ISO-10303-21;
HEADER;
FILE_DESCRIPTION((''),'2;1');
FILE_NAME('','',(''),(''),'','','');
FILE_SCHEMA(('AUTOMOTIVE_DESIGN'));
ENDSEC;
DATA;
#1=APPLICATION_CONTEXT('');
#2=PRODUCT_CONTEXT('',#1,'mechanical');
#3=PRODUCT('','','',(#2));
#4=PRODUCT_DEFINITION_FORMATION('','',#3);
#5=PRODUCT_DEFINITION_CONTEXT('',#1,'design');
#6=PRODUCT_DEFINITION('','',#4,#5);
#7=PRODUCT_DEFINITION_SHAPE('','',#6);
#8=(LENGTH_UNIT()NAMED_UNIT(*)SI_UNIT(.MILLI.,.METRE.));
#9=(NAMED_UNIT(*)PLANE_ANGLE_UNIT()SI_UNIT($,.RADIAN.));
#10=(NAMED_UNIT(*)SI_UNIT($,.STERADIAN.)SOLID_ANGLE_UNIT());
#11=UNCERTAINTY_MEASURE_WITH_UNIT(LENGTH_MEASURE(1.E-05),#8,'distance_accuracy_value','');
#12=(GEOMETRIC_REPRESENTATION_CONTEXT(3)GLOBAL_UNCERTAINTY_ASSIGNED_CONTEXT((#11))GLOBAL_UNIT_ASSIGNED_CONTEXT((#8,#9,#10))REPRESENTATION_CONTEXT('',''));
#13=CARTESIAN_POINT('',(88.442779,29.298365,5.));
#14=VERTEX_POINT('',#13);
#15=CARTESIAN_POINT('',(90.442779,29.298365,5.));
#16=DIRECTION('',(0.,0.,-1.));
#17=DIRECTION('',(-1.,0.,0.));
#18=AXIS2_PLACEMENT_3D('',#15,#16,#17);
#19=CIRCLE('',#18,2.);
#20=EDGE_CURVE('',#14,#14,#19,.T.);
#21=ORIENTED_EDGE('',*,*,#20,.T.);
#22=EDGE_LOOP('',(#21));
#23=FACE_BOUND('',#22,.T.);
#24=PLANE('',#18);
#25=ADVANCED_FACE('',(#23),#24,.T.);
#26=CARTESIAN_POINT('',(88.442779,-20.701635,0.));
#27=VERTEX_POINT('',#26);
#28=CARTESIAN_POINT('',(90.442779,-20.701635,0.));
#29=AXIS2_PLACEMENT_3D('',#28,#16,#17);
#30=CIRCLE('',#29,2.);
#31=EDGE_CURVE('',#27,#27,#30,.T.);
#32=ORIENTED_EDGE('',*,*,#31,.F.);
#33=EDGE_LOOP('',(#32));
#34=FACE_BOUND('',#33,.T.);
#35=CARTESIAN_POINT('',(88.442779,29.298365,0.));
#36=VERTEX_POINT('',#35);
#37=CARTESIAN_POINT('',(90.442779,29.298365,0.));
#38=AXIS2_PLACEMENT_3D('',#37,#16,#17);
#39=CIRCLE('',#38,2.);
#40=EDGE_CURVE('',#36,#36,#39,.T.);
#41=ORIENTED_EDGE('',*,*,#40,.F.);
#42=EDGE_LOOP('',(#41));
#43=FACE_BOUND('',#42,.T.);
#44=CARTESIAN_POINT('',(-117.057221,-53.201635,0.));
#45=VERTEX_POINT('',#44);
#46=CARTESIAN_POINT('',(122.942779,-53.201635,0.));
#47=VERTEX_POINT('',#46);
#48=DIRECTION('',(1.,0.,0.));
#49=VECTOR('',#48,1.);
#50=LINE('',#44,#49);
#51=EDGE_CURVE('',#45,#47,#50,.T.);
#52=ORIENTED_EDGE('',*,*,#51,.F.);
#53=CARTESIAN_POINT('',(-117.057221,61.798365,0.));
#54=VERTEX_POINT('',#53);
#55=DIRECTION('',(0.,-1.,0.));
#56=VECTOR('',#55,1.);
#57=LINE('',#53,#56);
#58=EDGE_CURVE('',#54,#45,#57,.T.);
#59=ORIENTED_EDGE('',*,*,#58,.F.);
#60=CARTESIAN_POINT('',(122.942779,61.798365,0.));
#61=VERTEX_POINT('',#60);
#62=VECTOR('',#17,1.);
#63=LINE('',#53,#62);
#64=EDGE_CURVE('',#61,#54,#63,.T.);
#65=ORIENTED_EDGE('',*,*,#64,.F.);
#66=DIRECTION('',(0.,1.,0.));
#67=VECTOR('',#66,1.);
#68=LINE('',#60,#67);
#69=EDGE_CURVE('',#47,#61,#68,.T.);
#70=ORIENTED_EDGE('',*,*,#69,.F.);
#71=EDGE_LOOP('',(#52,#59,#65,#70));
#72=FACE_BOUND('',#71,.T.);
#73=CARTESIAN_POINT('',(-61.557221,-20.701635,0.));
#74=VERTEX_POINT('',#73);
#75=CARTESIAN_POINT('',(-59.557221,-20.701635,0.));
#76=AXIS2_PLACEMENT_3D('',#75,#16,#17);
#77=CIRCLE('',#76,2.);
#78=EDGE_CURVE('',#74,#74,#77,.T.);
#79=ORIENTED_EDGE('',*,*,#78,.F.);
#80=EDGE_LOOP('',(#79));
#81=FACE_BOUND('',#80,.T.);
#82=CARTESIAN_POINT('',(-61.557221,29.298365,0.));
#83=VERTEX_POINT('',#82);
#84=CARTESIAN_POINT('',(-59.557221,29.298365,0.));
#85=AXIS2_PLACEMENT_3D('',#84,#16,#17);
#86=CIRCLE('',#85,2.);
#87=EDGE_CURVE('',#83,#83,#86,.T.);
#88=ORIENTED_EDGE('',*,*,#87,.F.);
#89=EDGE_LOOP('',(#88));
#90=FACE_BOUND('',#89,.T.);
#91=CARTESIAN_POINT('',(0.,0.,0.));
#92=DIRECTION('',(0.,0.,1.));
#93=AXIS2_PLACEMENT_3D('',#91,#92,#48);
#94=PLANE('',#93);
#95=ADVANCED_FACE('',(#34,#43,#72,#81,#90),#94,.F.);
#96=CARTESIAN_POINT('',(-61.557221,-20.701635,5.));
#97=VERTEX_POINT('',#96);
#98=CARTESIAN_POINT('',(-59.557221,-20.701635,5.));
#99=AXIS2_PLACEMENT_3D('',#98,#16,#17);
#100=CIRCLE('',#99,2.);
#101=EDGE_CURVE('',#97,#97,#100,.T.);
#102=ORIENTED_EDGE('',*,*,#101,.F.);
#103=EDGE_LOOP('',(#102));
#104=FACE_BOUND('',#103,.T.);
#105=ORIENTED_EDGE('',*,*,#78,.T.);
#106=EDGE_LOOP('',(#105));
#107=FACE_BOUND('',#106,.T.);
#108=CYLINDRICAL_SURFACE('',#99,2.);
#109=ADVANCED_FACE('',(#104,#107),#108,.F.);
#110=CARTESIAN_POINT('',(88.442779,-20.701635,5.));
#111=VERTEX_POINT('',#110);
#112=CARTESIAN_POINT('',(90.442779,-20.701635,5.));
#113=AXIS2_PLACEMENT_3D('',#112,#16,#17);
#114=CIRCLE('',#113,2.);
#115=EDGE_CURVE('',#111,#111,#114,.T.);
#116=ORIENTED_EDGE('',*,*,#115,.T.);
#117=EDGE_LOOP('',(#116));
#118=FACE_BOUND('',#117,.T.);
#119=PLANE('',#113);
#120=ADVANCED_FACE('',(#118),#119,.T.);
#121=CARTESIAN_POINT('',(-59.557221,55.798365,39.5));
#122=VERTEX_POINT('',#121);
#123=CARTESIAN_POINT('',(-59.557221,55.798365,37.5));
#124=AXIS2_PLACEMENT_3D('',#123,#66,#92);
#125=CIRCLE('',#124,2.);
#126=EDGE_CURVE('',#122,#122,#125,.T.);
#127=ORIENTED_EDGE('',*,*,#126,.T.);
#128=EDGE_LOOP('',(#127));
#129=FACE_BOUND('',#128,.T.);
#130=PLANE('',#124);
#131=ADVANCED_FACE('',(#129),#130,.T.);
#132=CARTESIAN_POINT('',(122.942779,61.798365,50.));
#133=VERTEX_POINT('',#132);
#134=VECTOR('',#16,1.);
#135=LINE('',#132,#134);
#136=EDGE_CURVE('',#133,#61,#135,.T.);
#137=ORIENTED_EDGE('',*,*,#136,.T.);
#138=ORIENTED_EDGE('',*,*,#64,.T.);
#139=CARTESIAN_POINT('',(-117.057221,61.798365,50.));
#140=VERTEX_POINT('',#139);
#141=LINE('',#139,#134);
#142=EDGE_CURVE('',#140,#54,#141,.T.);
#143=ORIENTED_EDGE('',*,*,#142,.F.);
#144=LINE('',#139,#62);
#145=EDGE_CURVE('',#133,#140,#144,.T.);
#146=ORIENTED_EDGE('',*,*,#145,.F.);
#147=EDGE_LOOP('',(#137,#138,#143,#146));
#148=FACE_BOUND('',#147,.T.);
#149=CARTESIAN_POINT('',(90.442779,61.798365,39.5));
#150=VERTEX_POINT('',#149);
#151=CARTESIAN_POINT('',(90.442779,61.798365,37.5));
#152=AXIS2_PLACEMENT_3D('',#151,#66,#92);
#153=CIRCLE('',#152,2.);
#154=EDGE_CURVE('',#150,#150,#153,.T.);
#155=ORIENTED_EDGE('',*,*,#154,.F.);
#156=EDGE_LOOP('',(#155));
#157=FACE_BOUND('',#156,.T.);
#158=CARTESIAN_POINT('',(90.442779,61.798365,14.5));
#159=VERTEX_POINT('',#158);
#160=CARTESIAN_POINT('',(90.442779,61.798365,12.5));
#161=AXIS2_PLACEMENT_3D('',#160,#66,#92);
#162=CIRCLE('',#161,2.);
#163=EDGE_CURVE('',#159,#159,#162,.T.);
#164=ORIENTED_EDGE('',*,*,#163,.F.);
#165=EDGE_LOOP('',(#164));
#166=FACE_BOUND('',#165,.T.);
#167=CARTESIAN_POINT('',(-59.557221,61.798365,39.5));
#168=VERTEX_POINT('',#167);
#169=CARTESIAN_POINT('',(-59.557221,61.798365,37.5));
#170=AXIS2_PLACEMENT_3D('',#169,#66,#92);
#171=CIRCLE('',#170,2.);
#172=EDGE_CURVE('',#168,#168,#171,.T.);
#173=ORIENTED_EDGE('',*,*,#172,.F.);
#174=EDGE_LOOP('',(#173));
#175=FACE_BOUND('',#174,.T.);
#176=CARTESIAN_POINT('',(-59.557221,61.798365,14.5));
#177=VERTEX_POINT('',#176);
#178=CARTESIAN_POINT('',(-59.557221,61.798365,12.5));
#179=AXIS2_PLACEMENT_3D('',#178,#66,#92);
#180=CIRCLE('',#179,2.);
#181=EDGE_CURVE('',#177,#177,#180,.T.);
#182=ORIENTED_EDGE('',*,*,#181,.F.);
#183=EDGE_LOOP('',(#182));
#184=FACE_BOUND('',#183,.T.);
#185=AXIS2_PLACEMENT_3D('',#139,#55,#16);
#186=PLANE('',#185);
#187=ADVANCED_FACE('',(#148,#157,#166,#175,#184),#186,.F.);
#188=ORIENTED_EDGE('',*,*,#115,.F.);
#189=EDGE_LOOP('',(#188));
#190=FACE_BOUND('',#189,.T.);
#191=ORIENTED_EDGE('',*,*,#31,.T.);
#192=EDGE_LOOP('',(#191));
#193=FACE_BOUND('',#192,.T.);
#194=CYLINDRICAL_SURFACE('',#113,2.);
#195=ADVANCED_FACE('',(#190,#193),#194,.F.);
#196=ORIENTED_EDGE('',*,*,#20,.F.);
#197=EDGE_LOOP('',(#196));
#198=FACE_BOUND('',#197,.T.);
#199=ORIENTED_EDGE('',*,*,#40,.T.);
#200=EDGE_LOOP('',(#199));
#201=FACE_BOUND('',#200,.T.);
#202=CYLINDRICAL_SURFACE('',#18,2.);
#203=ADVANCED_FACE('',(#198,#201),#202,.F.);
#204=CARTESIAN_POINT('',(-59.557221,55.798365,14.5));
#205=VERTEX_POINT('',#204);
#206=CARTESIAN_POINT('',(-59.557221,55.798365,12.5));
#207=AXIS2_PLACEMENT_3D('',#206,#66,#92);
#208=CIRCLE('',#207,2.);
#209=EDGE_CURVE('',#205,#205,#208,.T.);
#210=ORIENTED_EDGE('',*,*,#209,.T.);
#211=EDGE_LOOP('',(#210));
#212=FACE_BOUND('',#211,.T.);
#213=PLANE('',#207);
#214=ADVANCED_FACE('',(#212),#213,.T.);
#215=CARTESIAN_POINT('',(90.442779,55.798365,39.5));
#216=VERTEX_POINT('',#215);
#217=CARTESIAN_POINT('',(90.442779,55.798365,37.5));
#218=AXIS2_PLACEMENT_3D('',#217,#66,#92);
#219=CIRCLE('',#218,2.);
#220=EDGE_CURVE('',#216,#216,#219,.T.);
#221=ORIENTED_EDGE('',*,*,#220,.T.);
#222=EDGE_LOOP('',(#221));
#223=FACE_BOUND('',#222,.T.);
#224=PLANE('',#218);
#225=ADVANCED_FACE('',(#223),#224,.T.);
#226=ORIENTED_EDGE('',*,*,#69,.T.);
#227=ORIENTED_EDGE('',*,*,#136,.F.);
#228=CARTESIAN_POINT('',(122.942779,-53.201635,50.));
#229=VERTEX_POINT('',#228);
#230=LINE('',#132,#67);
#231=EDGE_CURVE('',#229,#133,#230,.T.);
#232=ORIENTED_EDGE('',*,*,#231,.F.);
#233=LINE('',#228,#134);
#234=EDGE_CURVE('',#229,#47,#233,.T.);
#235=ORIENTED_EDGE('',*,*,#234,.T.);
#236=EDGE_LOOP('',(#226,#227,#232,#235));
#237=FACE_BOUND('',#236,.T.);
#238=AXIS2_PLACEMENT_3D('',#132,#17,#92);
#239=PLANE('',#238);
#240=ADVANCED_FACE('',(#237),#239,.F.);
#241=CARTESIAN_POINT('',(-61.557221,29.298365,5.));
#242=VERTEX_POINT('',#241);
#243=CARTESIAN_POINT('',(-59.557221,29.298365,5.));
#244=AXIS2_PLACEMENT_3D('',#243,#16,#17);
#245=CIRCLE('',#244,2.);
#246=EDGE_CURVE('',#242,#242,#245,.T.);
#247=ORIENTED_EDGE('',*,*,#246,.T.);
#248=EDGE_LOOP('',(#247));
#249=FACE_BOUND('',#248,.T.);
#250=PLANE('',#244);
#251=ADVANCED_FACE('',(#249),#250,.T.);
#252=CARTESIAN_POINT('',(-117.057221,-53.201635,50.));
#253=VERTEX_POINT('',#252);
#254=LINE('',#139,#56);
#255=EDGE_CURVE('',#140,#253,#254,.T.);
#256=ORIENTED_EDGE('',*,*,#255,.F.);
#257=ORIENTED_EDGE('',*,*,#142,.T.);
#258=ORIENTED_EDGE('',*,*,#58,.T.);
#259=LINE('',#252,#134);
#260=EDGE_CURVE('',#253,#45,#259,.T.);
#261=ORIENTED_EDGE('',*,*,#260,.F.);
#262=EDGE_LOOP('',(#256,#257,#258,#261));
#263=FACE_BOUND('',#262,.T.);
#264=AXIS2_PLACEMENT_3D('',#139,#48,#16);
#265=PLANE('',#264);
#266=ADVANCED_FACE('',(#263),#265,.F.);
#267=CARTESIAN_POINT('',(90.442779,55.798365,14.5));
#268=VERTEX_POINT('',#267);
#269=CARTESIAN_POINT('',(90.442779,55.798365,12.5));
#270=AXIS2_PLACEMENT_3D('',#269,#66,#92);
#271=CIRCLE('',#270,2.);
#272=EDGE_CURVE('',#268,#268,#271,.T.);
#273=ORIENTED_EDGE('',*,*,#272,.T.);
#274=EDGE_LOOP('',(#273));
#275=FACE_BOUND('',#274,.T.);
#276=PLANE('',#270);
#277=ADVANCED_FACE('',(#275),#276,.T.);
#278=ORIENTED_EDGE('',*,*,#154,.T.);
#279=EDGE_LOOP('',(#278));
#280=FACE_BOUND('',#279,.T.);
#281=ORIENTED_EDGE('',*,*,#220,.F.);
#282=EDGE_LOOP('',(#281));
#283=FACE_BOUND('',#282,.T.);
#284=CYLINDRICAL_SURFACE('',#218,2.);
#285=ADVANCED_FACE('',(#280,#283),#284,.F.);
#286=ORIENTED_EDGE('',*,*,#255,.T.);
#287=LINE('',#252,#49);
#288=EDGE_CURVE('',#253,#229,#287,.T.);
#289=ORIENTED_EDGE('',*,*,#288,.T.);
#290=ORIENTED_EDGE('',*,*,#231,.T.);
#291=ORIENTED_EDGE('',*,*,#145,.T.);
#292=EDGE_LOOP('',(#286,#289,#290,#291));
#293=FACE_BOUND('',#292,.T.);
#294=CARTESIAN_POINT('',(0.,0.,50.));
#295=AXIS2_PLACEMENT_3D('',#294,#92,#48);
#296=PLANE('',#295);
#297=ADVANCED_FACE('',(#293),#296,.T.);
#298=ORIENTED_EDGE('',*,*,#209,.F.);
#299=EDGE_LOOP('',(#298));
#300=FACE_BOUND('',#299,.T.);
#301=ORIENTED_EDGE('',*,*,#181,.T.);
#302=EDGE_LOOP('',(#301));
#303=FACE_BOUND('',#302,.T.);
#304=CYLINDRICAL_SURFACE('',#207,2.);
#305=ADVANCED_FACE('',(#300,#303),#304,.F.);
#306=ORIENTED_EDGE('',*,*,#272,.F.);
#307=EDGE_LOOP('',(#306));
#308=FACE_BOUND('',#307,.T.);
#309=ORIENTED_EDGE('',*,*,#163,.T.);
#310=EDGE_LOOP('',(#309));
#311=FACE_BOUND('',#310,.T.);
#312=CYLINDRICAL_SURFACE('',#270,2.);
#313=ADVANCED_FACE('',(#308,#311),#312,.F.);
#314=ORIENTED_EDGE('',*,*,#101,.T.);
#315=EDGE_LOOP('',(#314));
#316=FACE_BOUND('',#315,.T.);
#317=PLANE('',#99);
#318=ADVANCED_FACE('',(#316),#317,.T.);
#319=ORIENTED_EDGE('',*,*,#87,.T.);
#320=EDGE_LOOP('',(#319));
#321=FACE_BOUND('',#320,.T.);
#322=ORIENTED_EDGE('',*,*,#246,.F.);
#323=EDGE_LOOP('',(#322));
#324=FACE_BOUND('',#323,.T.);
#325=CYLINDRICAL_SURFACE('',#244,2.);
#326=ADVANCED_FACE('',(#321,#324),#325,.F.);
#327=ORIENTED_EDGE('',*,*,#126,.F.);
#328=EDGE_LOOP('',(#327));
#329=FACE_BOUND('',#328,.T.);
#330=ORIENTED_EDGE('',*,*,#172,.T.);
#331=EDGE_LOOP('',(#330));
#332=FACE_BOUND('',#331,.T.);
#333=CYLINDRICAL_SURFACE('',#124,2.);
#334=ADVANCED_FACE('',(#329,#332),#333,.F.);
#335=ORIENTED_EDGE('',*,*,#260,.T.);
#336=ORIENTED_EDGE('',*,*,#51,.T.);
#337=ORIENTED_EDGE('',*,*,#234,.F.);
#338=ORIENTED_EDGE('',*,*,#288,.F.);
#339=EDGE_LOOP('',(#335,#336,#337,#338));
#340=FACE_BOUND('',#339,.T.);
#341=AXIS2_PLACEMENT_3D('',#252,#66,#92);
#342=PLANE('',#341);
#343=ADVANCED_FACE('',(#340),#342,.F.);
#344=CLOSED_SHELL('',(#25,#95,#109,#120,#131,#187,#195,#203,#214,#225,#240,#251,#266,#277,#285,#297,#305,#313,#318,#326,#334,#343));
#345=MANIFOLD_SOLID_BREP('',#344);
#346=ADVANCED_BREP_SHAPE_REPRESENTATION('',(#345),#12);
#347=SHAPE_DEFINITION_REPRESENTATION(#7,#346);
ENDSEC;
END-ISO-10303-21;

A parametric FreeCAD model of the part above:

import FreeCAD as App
import Part
import Sketcher
Q = App.Units.Quantity

doc = App.newDocument("Part")
body = doc.addObject("PartDesign::Body", "Body")

# Sketch on XY plane
sketch1 = body.newObject("Sketcher::SketchObject", "Sketch")
sketch1.AttachmentSupport = (doc.getObject("XY_Plane"), [""])
sketch1.MapMode = "FlatFace"
sketch1.addGeometry([
    Part.LineSegment(App.Vector(-117, 62, 0), App.Vector(-117, -53, 0)),
    Part.LineSegment(App.Vector(-117, -53, 0), App.Vector(123, -53, 0)),
    Part.LineSegment(App.Vector(123, -53, 0), App.Vector(123, 62, 0)),
    Part.LineSegment(App.Vector(123, 62, 0), App.Vector(-117, 62, 0)),
], False)
sketch1.addConstraint([
    Sketcher.Constraint("Coincident", 0, 2, 1, 1),
    Sketcher.Constraint("Coincident", 1, 2, 2, 1),
    Sketcher.Constraint("Coincident", 2, 2, 3, 1),
    Sketcher.Constraint("Coincident", 3, 2, 0, 1),
    Sketcher.Constraint("Vertical", 0),
    Sketcher.Constraint("Horizontal", 1),
    Sketcher.Constraint("Vertical", 2),
    Sketcher.Constraint("Horizontal", 3),
    Sketcher.Constraint("DistanceX", 1, 1, 1, 2, Q("240 mm")),
    Sketcher.Constraint("DistanceY", 0, 2, 0, 1, Q("115 mm")),
    Sketcher.Constraint("DistanceX", 0, 2, -1, 1, Q("117.057221 mm")),
    Sketcher.Constraint("DistanceY", 0, 2, -1, 1, Q("53.201635 mm")),
])
pad1 = body.newObject("PartDesign::Pad", "Pad")
pad1.Profile = sketch1
pad1.Length = 50

# Sketch on XY plane
sketch2 = body.newObject("Sketcher::SketchObject", "Sketch001")
sketch2.AttachmentSupport = (doc.getObject("XY_Plane"), [""])
sketch2.MapMode = "FlatFace"
sketch2.addGeometry([
    Part.Circle(App.Vector(90.4, 29.3, 0), App.Vector(0, 0, 1), 2),
    Part.Circle(App.Vector(-59.6, 29.3, 0), App.Vector(0, 0, 1), 2),
    Part.Circle(App.Vector(-59.6, -20.7, 0), App.Vector(0, 0, 1), 2),
    Part.Circle(App.Vector(90.4, -20.7, 0), App.Vector(0, 0, 1), 2),
], False)
sketch2.addConstraint([
    Sketcher.Constraint("Equal", 0, 1),
    Sketcher.Constraint("Equal", 1, 2),
    Sketcher.Constraint("Equal", 2, 3),
    Sketcher.Constraint("Horizontal", 0, 3, 1, 3),
    Sketcher.Constraint("Horizontal", 2, 3, 3, 3),
    Sketcher.Constraint("Vertical", 1, 3, 2, 3),
    Sketcher.Constraint("Vertical", 0, 3, 3, 3),
    Sketcher.Constraint("Diameter", 0, Q("4 mm")),
    Sketcher.Constraint("DistanceX", 1, 3, 0, 3, Q("150 mm")),
    Sketcher.Constraint("DistanceY", 2, 3, 1, 3, Q("50 mm")),
    Sketcher.Constraint("DistanceX", -1, 1, 0, 3, Q("90.442779 mm")),
    Sketcher.Constraint("DistanceY", -1, 1, 0, 3, Q("29.298365 mm")),
])
pocket1 = body.newObject("PartDesign::Pocket", "Pocket")
pocket1.Profile = sketch2
pocket1.Length = 5
pocket1.Reversed = True

# Sketch on XZ plane
sketch3 = body.newObject("Sketcher::SketchObject", "Sketch002")
sketch3.AttachmentSupport = (doc.getObject("XZ_Plane"), [""])
sketch3.MapMode = "FlatFace"
sketch3.AttachmentOffset = App.Placement(App.Vector(0, 0, -61.798365), App.Rotation())
sketch3.addGeometry([
    Part.Circle(App.Vector(90.4, 37.5, 0), App.Vector(0, 0, 1), 2),
    Part.Circle(App.Vector(-59.6, 37.5, 0), App.Vector(0, 0, 1), 2),
    Part.Circle(App.Vector(-59.6, 12.5, 0), App.Vector(0, 0, 1), 2),
    Part.Circle(App.Vector(90.4, 12.5, 0), App.Vector(0, 0, 1), 2),
], False)
sketch3.addConstraint([
    Sketcher.Constraint("Equal", 0, 1),
    Sketcher.Constraint("Equal", 1, 2),
    Sketcher.Constraint("Equal", 2, 3),
    Sketcher.Constraint("Horizontal", 0, 3, 1, 3),
    Sketcher.Constraint("Horizontal", 2, 3, 3, 3),
    Sketcher.Constraint("Vertical", 1, 3, 2, 3),
    Sketcher.Constraint("Vertical", 0, 3, 3, 3),
    Sketcher.Constraint("Diameter", 0, Q("4 mm")),
    Sketcher.Constraint("DistanceX", 1, 3, 0, 3, Q("150 mm")),
    Sketcher.Constraint("DistanceY", 2, 3, 1, 3, Q("25 mm")),
    Sketcher.Constraint("DistanceY", -1, 1, 0, 3, Q("37.5 mm")),
    Sketcher.Constraint("DistanceX", -1, 1, 0, 3, Q("90.442779 mm")),
])
pocket2 = body.newObject("PartDesign::Pocket", "Pocket001")
pocket2.Profile = sketch3
pocket2.Length = 6
pocket2.Reversed = True

doc.recompute()
